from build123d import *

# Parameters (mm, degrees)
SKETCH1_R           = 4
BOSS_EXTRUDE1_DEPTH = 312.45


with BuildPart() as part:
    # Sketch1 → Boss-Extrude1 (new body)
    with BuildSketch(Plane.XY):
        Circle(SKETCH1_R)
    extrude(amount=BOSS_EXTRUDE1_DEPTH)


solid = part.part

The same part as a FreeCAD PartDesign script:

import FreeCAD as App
import Part
import Sketcher
from FreeCAD import Vector

doc = App.newDocument("Part")
params = doc.addObject("Spreadsheet::Sheet", "Params")
for row, (alias, value) in enumerate([
    ("sketch1_diameter", "8 mm"),
    ("pad1_length", "312.45 mm"),
], start=1):
    params.set(f"A{row}", alias)
    params.set(f"B{row}", "=" + value)
    params.setAlias(f"B{row}", alias)

body = doc.addObject("PartDesign::Body", "Body")

# Sketch on XY plane
sketch1 = body.newObject("Sketcher::SketchObject", "Sketch")
sketch1.AttachmentSupport = (doc.getObject("XY_Plane"), [""])
sketch1.MapMode = "FlatFace"
sketch1.addGeometry(Part.Circle(Vector(0, 0, 0), Vector(0, 0, 1), 4), False)
sketch1.addConstraint([
    Sketcher.Constraint("Coincident", 0, 3, -1, 1),
    Sketcher.Constraint("Diameter", 0, 8.0),
])
sketch1.setExpression("Constraints[1]", "Params.sketch1_diameter")
pad1 = body.newObject("PartDesign::Pad", "Pad")
pad1.Profile = sketch1
pad1.setExpression("Length", "Params.pad1_length")

doc.recompute()
